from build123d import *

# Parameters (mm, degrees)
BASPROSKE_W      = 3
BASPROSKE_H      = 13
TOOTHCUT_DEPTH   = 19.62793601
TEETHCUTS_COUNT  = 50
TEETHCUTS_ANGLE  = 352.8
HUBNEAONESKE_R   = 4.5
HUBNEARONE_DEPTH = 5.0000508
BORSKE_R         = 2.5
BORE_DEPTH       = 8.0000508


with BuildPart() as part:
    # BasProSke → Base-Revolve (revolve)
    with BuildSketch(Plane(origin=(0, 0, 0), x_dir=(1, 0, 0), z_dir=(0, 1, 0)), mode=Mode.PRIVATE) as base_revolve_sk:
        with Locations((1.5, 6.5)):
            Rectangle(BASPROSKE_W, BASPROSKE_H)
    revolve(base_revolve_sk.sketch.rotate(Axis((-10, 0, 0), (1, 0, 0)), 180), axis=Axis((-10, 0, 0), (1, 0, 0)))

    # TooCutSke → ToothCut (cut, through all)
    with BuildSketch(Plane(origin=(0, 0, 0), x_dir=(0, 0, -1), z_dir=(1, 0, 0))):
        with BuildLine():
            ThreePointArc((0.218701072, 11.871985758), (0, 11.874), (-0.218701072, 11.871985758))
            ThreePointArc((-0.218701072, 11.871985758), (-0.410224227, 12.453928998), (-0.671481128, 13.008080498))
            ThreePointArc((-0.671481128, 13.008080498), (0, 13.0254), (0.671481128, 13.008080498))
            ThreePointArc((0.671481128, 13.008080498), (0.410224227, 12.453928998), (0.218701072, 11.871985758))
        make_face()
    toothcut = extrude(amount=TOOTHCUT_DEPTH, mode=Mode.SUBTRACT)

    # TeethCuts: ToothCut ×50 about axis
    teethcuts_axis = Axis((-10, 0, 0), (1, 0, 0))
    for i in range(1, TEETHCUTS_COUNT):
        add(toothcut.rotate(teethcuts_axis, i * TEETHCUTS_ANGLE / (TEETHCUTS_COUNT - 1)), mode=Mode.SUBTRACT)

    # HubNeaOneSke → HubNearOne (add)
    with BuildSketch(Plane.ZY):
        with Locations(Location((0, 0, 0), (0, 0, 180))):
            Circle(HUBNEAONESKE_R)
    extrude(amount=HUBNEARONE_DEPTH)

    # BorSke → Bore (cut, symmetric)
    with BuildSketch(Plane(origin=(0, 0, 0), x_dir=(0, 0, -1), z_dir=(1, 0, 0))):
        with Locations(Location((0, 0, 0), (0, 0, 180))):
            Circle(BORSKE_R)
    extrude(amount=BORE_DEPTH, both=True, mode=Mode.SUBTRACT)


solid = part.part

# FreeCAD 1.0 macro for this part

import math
import FreeCAD as App
import Part
import Sketcher
from FreeCAD import Vector


def add_polygon(sketch, points):
    """Adds a closed chain of lines whose ends are joined by coincident constraints."""
    first, n = sketch.GeometryCount, len(points)
    for a, b in zip(points, points[1:] + points[:1]):
        sketch.addGeometry(Part.LineSegment(App.Vector(*a, 0), App.Vector(*b, 0)), False)
    for i in range(n):
        sketch.addConstraint(Sketcher.Constraint("Coincident", first + i, 2, first + (i + 1) % n, 1))

doc = App.newDocument("Part")
body = doc.addObject("PartDesign::Body", "Body")

# Sketch on XZ plane
sketch1 = body.newObject("Sketcher::SketchObject", "Sketch")
sketch1.AttachmentSupport = (doc.getObject("XZ_Plane"), [""])
sketch1.MapMode = "FlatFace"
add_polygon(sketch1, [(0, -13), (0, 0), (3, 0), (3, -13)])  # lines 0-3
sketch1.addConstraint([
    Sketcher.Constraint("Vertical", 0),
    Sketcher.Constraint("Horizontal", 1),
    Sketcher.Constraint("Vertical", 2),
    Sketcher.Constraint("Horizontal", 3),
    Sketcher.Constraint("Coincident", 0, 2, -1, 1),
    Sketcher.Constraint("DistanceX", 1, 1, 1, 2, 3.0),
    Sketcher.Constraint("DistanceY", 0, 1, 0, 2, 13.0),
])
revolution = body.newObject("PartDesign::Revolution", "Revolution")
revolution.Profile = sketch1
revolution.ReferenceAxis = (sketch1, ["H_Axis"])
revolution.Angle = 360

# Sketch on YZ plane
sketch2 = body.newObject("Sketcher::SketchObject", "Sketch001")
sketch2.AttachmentSupport = (doc.getObject("YZ_Plane"), [""])
sketch2.MapMode = "FlatFace"
sketch2.addGeometry([
    Part.ArcOfCircle(Part.Circle(Vector(0, 0, 0), Vector(0, 0, 1), 11.87), math.radians(-1.06), math.radians(1.06)),
    Part.ArcOfCircle(Part.Circle(Vector(10.6, -5.05, 0), Vector(0, 0, 1), 5), math.radians(61.25), math.radians(75.3)),
    Part.ArcOfCircle(Part.Circle(Vector(0, 0, 0), Vector(0, 0, 1), 13.03), math.radians(-2.96), math.radians(2.96)),
    Part.ArcOfCircle(Part.Circle(Vector(10.6, 5.05, 0), Vector(0, 0, 1), 5), math.radians(-75.3), math.radians(-61.25)),
], False)
sketch2.addConstraint([
    Sketcher.Constraint("Coincident", 0, 1, 1, 2),
    Sketcher.Constraint("Coincident", 1, 1, 2, 1),
    Sketcher.Constraint("Coincident", 2, 2, 3, 2),
    Sketcher.Constraint("Coincident", 3, 1, 0, 2),
    Sketcher.Constraint("Coincident", 0, 3, -1, 1),
    Sketcher.Constraint("Coincident", 2, 3, -1, 1),
    Sketcher.Constraint("Equal", 1, 3),
    Sketcher.Constraint("Symmetric", 1, 3, 3, 3, -1),
    Sketcher.Constraint("Radius", 1, 5.0),
    Sketcher.Constraint("Radius", 0, 11.873999),
    Sketcher.Constraint("Radius", 2, 13.0254),
    Sketcher.Constraint("DistanceY", 0, 1, -1, 1, 0.218701),
    Sketcher.Constraint("DistanceX", -1, 1, 1, 3, 10.60282),
])
pocket1 = body.newObject("PartDesign::Pocket", "Pocket")
pocket1.Profile = sketch2
pocket1.Type = "ThroughAll"
pocket1.Reversed = True
doc.recompute()

polarpattern = body.newObject("PartDesign::PolarPattern", "PolarPattern")
polarpattern.Originals = [pocket1]
polarpattern.Axis = (doc.getObject("X_Axis"), [""])
polarpattern.Angle = 360
polarpattern.Occurrences = 50
body.Tip = polarpattern

# Sketch on YZ plane
sketch3 = body.newObject("Sketcher::SketchObject", "Sketch002")
sketch3.AttachmentSupport = (doc.getObject("YZ_Plane"), [""])
sketch3.MapMode = "FlatFace"
sketch3.addGeometry(Part.Circle(Vector(0, 0, 0), Vector(0, 0, 1), 4.5), False)
sketch3.addConstraint([
    Sketcher.Constraint("Coincident", 0, 3, -1, 1),
    Sketcher.Constraint("Diameter", 0, 9.0),
])
pad1 = body.newObject("PartDesign::Pad", "Pad")
pad1.Profile = sketch3
pad1.Length = 5.000051
pad1.Reversed = True

# Sketch on YZ plane
sketch4 = body.newObject("Sketcher::SketchObject", "Sketch003")
sketch4.AttachmentSupport = (doc.getObject("YZ_Plane"), [""])
sketch4.MapMode = "FlatFace"
sketch4.addGeometry(Part.Circle(Vector(0, 0, 0), Vector(0, 0, 1), 2.5), False)
sketch4.addConstraint([
    Sketcher.Constraint("Coincident", 0, 3, -1, 1),
    Sketcher.Constraint("Diameter", 0, 5.0),
])
pocket2 = body.newObject("PartDesign::Pocket", "Pocket001")
pocket2.Profile = sketch4
pocket2.Length = 16.000102
pocket2.Midplane = True

doc.recompute()
